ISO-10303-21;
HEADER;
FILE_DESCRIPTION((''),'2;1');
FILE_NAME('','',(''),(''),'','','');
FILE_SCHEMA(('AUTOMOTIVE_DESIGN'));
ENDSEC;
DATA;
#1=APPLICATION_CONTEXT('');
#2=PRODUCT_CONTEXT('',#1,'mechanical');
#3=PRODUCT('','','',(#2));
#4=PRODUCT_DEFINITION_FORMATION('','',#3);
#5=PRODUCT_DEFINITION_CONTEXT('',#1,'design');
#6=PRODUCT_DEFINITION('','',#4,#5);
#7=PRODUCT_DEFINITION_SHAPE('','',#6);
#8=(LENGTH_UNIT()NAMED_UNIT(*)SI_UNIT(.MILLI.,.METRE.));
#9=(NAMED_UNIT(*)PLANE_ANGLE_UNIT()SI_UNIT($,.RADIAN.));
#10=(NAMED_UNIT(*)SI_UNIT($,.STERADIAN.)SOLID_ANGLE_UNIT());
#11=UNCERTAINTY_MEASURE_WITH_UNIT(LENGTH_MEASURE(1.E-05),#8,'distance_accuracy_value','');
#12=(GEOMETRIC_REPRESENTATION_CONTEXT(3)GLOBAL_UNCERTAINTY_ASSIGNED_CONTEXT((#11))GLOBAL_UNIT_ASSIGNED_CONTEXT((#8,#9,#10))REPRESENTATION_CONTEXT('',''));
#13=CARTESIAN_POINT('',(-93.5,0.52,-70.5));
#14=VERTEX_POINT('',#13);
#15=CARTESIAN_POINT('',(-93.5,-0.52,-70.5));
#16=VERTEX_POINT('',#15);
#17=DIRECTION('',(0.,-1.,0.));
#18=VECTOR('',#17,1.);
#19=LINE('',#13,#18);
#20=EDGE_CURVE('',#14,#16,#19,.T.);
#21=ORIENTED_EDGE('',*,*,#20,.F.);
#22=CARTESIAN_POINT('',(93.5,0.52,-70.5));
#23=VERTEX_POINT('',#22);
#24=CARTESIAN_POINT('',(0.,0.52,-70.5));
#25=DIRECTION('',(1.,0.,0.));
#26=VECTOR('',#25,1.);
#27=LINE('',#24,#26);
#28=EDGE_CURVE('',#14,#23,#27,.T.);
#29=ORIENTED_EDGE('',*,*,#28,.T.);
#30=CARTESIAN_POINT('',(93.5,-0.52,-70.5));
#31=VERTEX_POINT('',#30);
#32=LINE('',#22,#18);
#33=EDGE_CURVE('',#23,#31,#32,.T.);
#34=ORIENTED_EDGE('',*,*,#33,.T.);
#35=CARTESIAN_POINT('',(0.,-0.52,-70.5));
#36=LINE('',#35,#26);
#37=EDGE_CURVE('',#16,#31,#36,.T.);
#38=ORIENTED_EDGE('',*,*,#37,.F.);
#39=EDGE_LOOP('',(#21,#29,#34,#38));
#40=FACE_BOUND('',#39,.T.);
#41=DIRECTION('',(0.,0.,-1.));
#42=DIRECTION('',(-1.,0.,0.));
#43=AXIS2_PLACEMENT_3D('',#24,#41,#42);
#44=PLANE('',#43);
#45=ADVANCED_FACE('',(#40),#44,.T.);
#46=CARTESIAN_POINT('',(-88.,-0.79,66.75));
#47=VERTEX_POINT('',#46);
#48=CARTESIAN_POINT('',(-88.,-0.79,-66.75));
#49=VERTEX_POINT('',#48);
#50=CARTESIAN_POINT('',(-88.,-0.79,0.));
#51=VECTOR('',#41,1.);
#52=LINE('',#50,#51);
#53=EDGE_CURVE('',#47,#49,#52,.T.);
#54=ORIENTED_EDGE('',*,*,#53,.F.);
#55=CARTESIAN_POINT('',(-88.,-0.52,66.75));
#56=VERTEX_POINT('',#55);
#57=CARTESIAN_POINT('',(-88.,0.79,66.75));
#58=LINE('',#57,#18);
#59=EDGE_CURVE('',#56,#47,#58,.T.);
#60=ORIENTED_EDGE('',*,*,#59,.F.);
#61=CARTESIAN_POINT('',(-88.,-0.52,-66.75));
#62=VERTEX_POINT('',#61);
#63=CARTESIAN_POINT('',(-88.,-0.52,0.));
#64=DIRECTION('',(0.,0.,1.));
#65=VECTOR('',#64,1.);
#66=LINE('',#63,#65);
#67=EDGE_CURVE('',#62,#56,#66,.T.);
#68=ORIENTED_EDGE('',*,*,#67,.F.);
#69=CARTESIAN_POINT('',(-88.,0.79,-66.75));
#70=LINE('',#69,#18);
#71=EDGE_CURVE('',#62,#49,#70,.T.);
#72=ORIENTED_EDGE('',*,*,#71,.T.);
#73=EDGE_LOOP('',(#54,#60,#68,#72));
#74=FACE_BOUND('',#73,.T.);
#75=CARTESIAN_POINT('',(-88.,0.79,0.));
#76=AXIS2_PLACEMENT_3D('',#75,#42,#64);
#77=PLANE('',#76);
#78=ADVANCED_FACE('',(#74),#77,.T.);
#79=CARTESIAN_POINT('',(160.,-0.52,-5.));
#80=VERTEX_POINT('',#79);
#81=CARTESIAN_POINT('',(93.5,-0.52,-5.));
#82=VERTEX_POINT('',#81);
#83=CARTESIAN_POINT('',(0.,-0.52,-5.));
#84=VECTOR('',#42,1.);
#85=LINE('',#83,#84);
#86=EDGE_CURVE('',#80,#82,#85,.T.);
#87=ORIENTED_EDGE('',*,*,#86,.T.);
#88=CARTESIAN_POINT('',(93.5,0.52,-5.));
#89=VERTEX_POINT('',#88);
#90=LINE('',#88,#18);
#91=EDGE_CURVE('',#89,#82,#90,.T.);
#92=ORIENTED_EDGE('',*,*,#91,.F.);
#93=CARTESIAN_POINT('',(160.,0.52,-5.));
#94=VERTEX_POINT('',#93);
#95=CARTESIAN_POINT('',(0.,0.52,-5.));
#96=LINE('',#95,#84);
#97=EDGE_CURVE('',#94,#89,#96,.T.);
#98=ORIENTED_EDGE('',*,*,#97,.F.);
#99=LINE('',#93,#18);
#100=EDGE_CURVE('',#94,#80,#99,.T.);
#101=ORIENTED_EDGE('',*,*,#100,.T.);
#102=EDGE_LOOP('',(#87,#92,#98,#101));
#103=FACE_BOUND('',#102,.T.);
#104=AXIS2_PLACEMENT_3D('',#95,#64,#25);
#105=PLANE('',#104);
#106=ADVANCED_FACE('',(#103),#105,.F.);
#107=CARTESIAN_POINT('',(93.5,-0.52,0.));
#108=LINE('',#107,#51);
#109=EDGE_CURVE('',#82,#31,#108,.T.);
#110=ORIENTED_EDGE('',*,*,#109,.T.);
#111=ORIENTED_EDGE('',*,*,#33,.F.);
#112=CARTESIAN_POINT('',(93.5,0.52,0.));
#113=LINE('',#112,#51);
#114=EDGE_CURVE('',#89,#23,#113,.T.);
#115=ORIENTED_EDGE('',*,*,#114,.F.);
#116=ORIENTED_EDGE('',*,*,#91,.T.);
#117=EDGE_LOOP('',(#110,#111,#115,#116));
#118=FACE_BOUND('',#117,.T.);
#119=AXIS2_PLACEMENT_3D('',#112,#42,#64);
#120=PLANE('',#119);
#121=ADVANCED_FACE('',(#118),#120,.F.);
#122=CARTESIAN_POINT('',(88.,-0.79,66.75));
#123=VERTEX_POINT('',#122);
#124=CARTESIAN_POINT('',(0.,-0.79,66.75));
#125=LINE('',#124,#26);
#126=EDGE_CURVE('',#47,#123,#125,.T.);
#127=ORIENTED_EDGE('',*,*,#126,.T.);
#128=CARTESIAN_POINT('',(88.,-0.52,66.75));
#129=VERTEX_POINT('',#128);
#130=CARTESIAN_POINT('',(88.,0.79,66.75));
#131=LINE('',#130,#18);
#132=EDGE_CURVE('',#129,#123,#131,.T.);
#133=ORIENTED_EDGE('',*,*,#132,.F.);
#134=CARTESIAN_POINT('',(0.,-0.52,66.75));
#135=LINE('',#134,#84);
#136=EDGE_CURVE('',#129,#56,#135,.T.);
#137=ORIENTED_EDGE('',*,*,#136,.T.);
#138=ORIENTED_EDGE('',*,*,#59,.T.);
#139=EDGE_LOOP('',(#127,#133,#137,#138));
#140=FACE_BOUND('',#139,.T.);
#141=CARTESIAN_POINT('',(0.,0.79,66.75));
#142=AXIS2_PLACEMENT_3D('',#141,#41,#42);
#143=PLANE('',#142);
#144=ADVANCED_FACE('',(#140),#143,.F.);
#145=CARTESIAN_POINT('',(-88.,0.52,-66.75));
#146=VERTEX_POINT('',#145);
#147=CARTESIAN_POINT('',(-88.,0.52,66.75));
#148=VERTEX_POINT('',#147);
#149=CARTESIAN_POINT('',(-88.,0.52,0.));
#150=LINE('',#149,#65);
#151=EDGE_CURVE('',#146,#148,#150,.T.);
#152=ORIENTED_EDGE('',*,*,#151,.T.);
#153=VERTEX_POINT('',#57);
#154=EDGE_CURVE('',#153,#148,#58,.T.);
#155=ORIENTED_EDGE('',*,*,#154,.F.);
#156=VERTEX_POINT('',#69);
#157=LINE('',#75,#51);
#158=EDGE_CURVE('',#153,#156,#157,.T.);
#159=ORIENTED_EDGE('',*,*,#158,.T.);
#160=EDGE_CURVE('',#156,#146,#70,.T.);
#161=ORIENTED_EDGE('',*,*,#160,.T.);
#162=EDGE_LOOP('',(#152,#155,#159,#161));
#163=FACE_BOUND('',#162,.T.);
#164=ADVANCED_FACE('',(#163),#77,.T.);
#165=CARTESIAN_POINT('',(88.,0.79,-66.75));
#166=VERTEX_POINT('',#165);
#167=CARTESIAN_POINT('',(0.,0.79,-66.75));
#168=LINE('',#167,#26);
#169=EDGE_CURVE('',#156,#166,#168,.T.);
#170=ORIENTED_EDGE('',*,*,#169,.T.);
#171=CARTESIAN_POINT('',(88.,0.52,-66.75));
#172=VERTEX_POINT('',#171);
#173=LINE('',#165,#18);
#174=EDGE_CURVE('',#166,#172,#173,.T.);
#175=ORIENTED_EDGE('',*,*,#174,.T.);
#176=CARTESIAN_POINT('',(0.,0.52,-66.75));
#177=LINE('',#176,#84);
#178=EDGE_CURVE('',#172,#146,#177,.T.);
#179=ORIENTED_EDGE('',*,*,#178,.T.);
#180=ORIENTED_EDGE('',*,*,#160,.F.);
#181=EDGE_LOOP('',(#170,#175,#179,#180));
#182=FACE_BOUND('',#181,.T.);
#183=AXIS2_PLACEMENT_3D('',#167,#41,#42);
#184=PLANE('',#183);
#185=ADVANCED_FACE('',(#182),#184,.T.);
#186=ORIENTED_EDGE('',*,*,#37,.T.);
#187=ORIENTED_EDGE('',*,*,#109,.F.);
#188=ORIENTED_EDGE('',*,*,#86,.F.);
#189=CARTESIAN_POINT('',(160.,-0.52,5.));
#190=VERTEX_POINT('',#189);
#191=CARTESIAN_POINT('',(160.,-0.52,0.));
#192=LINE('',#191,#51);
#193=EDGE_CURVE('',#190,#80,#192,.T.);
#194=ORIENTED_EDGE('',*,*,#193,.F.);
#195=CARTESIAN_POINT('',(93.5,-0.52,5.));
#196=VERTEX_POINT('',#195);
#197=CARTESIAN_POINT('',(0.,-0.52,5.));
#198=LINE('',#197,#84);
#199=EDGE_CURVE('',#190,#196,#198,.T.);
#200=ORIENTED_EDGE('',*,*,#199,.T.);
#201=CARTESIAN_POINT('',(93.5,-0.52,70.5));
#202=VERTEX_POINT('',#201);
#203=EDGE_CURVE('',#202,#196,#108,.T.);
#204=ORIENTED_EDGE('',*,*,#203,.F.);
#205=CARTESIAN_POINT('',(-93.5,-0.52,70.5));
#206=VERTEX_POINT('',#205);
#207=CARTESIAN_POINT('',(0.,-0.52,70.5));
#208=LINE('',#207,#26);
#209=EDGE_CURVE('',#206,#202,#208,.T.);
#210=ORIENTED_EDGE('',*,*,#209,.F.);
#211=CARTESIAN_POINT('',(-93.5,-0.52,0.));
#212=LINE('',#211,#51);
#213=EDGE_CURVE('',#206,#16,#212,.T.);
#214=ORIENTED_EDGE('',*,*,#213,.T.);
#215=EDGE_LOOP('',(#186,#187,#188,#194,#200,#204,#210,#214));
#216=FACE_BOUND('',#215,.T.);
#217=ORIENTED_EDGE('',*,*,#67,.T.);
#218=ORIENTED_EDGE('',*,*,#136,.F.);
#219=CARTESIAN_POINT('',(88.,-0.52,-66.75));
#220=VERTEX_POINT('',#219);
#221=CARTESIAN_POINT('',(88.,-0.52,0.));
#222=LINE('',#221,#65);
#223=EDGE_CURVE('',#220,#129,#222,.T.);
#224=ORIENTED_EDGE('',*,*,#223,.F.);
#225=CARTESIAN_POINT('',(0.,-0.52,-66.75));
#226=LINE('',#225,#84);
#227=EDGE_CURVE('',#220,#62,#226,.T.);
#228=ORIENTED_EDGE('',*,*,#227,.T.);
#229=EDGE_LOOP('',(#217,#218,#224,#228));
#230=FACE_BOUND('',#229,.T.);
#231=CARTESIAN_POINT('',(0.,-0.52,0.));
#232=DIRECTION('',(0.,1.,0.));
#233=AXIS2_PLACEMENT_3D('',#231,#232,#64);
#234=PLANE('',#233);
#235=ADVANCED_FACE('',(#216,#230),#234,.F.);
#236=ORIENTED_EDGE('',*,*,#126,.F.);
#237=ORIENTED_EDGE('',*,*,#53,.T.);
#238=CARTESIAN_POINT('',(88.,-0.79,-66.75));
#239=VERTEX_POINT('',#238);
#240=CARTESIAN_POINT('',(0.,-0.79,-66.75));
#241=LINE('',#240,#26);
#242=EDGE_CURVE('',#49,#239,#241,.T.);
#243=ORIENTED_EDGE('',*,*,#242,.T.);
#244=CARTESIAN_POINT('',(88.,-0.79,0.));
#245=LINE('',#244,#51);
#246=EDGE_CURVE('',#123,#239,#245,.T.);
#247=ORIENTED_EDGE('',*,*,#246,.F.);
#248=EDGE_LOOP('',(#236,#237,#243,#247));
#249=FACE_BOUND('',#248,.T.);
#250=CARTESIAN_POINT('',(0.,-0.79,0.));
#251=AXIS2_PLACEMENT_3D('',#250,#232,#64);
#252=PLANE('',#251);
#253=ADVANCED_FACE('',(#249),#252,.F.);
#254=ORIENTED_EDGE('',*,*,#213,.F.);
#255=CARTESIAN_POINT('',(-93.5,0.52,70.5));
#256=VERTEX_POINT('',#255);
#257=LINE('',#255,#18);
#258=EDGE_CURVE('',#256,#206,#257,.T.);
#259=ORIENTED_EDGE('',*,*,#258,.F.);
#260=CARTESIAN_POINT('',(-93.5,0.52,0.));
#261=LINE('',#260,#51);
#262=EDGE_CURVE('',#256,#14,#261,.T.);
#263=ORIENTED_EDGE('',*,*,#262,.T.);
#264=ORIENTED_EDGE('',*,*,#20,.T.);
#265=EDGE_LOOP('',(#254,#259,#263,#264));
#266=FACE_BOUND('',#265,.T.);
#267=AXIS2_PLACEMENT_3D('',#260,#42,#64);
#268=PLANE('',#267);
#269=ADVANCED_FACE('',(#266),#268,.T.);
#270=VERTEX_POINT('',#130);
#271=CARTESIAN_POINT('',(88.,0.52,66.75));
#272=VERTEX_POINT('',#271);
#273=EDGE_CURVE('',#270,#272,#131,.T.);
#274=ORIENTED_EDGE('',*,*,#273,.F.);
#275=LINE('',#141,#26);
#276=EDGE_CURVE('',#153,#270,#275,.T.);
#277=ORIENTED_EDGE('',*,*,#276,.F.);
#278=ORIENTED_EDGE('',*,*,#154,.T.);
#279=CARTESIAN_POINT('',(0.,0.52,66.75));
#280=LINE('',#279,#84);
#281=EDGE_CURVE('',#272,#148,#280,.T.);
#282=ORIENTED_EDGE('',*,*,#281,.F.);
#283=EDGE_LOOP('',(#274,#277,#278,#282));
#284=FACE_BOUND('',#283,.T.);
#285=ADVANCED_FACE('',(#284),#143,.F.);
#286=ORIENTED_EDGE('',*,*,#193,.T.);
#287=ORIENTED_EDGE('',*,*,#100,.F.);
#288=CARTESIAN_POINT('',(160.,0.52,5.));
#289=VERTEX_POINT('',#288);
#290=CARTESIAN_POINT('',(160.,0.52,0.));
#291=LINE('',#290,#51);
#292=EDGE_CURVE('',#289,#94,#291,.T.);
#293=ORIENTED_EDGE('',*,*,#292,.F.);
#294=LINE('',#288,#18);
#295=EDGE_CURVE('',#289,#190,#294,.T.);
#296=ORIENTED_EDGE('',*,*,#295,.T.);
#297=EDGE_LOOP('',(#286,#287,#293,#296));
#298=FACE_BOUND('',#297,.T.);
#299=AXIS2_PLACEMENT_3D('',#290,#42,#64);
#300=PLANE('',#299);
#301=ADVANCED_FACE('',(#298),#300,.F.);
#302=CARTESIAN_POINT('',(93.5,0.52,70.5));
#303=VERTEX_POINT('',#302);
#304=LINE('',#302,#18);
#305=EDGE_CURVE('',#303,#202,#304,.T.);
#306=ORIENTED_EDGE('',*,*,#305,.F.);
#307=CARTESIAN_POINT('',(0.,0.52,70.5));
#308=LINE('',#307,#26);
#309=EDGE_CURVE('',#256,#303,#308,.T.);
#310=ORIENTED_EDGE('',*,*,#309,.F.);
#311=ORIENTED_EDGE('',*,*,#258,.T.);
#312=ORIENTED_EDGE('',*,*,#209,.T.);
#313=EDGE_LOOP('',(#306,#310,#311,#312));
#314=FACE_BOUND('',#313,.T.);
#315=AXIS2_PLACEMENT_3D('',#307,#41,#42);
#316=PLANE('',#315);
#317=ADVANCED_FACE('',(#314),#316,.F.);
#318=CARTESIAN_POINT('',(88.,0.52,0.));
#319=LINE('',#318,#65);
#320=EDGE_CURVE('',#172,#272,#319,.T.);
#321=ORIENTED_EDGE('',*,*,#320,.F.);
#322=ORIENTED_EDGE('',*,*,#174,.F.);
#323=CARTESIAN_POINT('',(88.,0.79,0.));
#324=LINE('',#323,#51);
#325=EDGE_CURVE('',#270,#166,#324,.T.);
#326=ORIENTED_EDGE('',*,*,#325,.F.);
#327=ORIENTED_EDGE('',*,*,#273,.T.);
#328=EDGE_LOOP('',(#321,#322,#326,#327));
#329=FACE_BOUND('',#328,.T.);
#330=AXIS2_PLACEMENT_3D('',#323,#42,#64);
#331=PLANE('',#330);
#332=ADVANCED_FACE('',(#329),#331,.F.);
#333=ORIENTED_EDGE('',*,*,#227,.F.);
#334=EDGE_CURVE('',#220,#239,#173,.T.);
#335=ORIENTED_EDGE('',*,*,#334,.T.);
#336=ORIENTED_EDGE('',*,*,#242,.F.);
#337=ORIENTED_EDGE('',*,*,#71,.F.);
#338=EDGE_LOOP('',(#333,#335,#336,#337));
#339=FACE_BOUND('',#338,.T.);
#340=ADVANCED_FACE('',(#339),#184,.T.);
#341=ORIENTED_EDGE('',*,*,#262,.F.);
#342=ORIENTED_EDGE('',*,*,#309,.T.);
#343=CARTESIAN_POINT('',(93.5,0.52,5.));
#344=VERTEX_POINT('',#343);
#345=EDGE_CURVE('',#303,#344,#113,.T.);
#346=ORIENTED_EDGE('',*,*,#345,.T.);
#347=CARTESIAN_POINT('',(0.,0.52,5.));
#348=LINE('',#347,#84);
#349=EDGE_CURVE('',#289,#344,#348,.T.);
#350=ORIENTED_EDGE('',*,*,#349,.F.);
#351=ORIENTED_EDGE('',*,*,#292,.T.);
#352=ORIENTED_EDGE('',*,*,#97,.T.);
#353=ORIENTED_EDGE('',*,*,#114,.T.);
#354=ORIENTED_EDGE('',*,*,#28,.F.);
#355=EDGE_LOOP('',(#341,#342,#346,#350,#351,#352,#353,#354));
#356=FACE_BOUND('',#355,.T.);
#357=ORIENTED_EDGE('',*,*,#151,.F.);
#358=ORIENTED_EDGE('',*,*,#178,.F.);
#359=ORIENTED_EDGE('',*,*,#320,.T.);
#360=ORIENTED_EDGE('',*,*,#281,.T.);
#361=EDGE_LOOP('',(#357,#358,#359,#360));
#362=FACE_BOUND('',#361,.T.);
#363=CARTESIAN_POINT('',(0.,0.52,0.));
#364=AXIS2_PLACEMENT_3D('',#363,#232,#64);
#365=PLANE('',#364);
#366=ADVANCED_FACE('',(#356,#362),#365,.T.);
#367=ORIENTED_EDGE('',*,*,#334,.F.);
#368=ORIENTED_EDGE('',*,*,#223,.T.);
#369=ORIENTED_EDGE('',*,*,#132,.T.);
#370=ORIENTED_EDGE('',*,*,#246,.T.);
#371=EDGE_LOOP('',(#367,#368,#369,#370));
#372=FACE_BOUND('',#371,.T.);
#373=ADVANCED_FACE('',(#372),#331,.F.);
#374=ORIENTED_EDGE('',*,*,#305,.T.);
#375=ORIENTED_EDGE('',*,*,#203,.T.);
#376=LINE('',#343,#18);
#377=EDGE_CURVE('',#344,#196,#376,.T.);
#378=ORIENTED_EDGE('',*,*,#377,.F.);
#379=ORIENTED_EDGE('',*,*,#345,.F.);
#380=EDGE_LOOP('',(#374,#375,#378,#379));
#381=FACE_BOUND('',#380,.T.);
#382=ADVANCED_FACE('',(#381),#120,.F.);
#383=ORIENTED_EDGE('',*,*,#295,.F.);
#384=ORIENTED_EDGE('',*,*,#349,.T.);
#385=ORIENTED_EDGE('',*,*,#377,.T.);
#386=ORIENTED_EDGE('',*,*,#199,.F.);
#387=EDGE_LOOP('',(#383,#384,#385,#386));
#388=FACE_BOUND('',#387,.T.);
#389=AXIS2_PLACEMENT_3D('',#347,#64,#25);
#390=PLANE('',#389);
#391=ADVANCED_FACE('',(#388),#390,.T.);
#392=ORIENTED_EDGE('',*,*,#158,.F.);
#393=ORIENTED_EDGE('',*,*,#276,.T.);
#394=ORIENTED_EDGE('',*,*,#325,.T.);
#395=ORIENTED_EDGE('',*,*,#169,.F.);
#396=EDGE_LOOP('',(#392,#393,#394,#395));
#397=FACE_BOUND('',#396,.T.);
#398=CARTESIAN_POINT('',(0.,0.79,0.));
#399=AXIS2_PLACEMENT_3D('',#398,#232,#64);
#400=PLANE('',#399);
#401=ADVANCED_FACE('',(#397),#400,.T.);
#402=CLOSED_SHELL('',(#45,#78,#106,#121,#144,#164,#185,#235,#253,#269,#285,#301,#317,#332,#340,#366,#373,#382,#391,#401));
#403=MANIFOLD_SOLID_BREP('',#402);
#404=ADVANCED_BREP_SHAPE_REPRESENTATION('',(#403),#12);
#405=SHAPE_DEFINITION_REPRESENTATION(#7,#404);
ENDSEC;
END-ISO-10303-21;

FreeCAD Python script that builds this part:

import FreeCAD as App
import Part
import Sketcher


def add_polygon(sketch, points):
    """Adds a closed chain of lines whose ends are joined by coincident constraints."""
    first, n = sketch.GeometryCount, len(points)
    for a, b in zip(points, points[1:] + points[:1]):
        sketch.addGeometry(Part.LineSegment(App.Vector(*a, 0), App.Vector(*b, 0)), False)
    for i in range(n):
        sketch.addConstraint(Sketcher.Constraint("Coincident", first + i, 2, first + (i + 1) % n, 1))

doc = App.newDocument("Part")
params = doc.addObject("Spreadsheet::Sheet", "Params")
for row, (alias, value) in enumerate([
    ("sketch1_width", "187 mm"),
    ("sketch1_height", "141 mm"),
    ("sketch1_height2", "10 mm"),
    ("sketch1_width2", "66.5 mm"),
    ("pad1_length", "1.04 mm"),
    ("sketch2_width", "176 mm"),
    ("sketch2_height", "133.5 mm"),
    ("pad2_length", "1.58 mm"),
], start=1):
    params.set(f"A{row}", alias)
    params.set(f"B{row}", "=" + value)
    params.setAlias(f"B{row}", alias)

body = doc.addObject("PartDesign::Body", "Body")

# Sketch on XZ plane
sketch1 = body.newObject("Sketcher::SketchObject", "Sketch")
sketch1.AttachmentSupport = (doc.getObject("XZ_Plane"), [""])
sketch1.MapMode = "FlatFace"
add_polygon(sketch1, [(-94, -70), (-94, 70), (94, 70), (94, 5), (160, 5), (160, -5), (94, -5), (94, -70)])  # lines 0-7
sketch1.addConstraint([
    Sketcher.Constraint("Vertical", 0),
    Sketcher.Constraint("Horizontal", 1),
    Sketcher.Constraint("Vertical", 2),
    Sketcher.Constraint("Horizontal", 3),
    Sketcher.Constraint("Vertical", 4),
    Sketcher.Constraint("Horizontal", 5),
    Sketcher.Constraint("Vertical", 6),
    Sketcher.Constraint("Horizontal", 7),
    Sketcher.Constraint("Symmetric", 0, 2, 6, 2, -1, 1),
    Sketcher.Constraint("Symmetric", 2, 2, 5, 2, -1),
    Sketcher.Constraint("DistanceX", 1, 1, 1, 2, 187.0),
    Sketcher.Constraint("DistanceY", 0, 1, 0, 2, 141.0),
    Sketcher.Constraint("DistanceY", 4, 2, 4, 1, 10.0),
    Sketcher.Constraint("DistanceX", 3, 1, 3, 2, 66.5),
])
sketch1.setExpression("Constraints[18]", "Params.sketch1_width")
sketch1.setExpression("Constraints[19]", "Params.sketch1_height")
sketch1.setExpression("Constraints[20]", "Params.sketch1_height2")
sketch1.setExpression("Constraints[21]", "Params.sketch1_width2")
pad1 = body.newObject("PartDesign::Pad", "Pad")
pad1.Profile = sketch1
pad1.setExpression("Length", "Params.pad1_length")
pad1.Midplane = True

# Sketch on XZ plane
sketch2 = body.newObject("Sketcher::SketchObject", "Sketch001")
sketch2.AttachmentSupport = (doc.getObject("XZ_Plane"), [""])
sketch2.MapMode = "FlatFace"
add_polygon(sketch2, [(-88, -67), (-88, 67), (88, 67), (88, -67)])  # lines 0-3
sketch2.addConstraint([
    Sketcher.Constraint("Vertical", 0),
    Sketcher.Constraint("Horizontal", 1),
    Sketcher.Constraint("Vertical", 2),
    Sketcher.Constraint("Horizontal", 3),
    Sketcher.Constraint("Symmetric", 0, 2, 2, 2, -1, 1),
    Sketcher.Constraint("DistanceX", 1, 1, 1, 2, 176.0),
    Sketcher.Constraint("DistanceY", 0, 1, 0, 2, 133.5),
])
sketch2.setExpression("Constraints[9]", "Params.sketch2_width")
sketch2.setExpression("Constraints[10]", "Params.sketch2_height")
pad2 = body.newObject("PartDesign::Pad", "Pad001")
pad2.Profile = sketch2
pad2.setExpression("Length", "Params.pad2_length")
pad2.Midplane = True

doc.recompute()
